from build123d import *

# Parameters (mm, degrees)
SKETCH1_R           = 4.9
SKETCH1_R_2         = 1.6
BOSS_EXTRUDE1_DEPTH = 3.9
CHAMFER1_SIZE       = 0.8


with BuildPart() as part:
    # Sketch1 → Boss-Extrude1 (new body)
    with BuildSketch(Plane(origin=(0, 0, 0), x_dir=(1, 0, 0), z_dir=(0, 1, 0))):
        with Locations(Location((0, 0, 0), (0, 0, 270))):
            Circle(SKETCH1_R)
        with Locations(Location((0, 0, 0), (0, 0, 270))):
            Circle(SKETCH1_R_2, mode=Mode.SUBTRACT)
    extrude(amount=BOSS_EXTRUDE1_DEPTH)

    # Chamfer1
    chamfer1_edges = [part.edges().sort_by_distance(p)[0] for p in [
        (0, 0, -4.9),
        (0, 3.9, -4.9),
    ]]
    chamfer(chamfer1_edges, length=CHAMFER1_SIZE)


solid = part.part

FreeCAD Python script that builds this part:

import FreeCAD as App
import Part
import Sketcher
from FreeCAD import Vector


def edges_at(feature, points):
    """Names of the edges that pass closest to the given points."""
    edges = feature.Shape.Edges
    near = lambda p: min(range(len(edges)), key=lambda i: edges[i].distToShape(Part.Vertex(*p))[0])
    return sorted({f"Edge{near(p) + 1}" for p in points})

doc = App.newDocument("Part")
body = doc.addObject("PartDesign::Body", "Body")

sketch1 = body.newObject("Sketcher::SketchObject", "Sketch")
sketch1.AttachmentSupport = (doc.getObject("XZ_Plane"), [""])
sketch1.MapMode = "FlatFace"
sketch1.addGeometry([
    Part.Circle(Vector(0, 0, 0), Vector(0, 0, 1), 4.9),
    Part.Circle(Vector(0, 0, 0), Vector(0, 0, 1), 1.6),
], False)
sketch1.addConstraint([
    Sketcher.Constraint("Coincident", 0, 3, -1, 1),
    Sketcher.Constraint("Coincident", 1, 3, -1, 1),
    Sketcher.Constraint("Diameter", 0, 9.8),
    Sketcher.Constraint("Diameter", 1, 3.2),
])
pad1 = body.newObject("PartDesign::Pad", "Pad")
pad1.Profile = sketch1
pad1.Length = 3.9
pad1.Reversed = True
doc.recompute()

chamfer = body.newObject("PartDesign::Chamfer", "Chamfer")
chamfer.Base = (pad1, edges_at(pad1, [(0, 0, -4.9), (0, 3.9, -4.9)]))
chamfer.Size = 0.8

doc.recompute()
